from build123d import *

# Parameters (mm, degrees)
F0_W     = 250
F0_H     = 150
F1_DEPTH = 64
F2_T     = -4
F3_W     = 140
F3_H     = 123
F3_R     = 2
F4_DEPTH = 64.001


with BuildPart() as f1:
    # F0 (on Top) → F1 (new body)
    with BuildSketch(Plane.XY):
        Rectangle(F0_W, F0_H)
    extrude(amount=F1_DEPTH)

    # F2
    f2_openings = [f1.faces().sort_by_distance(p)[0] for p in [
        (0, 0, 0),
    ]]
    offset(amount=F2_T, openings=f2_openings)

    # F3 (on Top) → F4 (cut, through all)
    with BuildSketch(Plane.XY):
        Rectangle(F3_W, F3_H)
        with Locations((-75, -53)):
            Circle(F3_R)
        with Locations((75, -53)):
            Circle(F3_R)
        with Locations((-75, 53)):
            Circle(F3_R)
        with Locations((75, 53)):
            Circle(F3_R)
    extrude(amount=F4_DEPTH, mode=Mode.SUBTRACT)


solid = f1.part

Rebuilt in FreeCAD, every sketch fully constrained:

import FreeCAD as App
import Part
import Sketcher

V = App.Vector


def faces_at(feature, points):
    """Names of the faces that lie closest to the given points."""
    faces = feature.Shape.Faces
    near = lambda p: min(range(len(faces)), key=lambda i: faces[i].distToShape(Part.Vertex(*p))[0])
    return sorted({f"Face{near(p) + 1}" for p in points})


def add_polygon(sketch, points):
    """Adds a closed chain of lines whose ends are joined by coincident constraints."""
    first, n = sketch.GeometryCount, len(points)
    for a, b in zip(points, points[1:] + points[:1]):
        sketch.addGeometry(Part.LineSegment(App.Vector(*a, 0), App.Vector(*b, 0)), False)
    for i in range(n):
        sketch.addConstraint(Sketcher.Constraint("Coincident", first + i, 2, first + (i + 1) % n, 1))

doc = App.newDocument("Part")
body = doc.addObject("PartDesign::Body", "Body")

sketch1 = body.newObject("Sketcher::SketchObject", "Sketch")
sketch1.AttachmentSupport = (doc.getObject("XY_Plane"), [""])
sketch1.MapMode = "FlatFace"
add_polygon(sketch1, [(-125, 75), (-125, -75), (125, -75), (125, 75)])
sketch1.addConstraint([
    Sketcher.Constraint("Vertical", 0),
    Sketcher.Constraint("Horizontal", 1),
    Sketcher.Constraint("Vertical", 2),
    Sketcher.Constraint("Horizontal", 3),
    Sketcher.Constraint("Symmetric", 0, 2, 2, 2, -1, 1),
    Sketcher.Constraint("DistanceX", 1, 1, 1, 2, 250.0),
    Sketcher.Constraint("DistanceY", 0, 2, 0, 1, 150.0),
])
pad1 = body.newObject("PartDesign::Pad", "Pad")
pad1.Profile = sketch1
pad1.Length = 64
doc.recompute()

thickness = body.newObject("PartDesign::Thickness", "Thickness")
thickness.Base = (pad1, faces_at(pad1, [(0, 0, 0)]))
thickness.Value = 4
thickness.Reversed = True
thickness.Join = "Arc"

sketch2 = body.newObject("Sketcher::SketchObject", "Sketch001")
sketch2.AttachmentSupport = (doc.getObject("XY_Plane"), [""])
sketch2.MapMode = "FlatFace"
add_polygon(sketch2, [(-70, 61.5), (-70, -61.5), (70, -61.5), (70, 61.5)])
sketch2.addGeometry(Part.Circle(V(-75, -53, 0), V(0, 0, 1), 2), False)
sketch2.addGeometry(Part.Circle(V(75, -53, 0), V(0, 0, 1), 2), False)
sketch2.addGeometry(Part.Circle(V(-75, 53, 0), V(0, 0, 1), 2), False)
sketch2.addGeometry(Part.Circle(V(75, 53, 0), V(0, 0, 1), 2), False)
sketch2.addConstraint([
    Sketcher.Constraint("Vertical", 0),
    Sketcher.Constraint("Horizontal", 1),
    Sketcher.Constraint("Vertical", 2),
    Sketcher.Constraint("Horizontal", 3),
    Sketcher.Constraint("Equal", 4, 5),
    Sketcher.Constraint("Equal", 5, 6),
    Sketcher.Constraint("Equal", 6, 7),
    Sketcher.Constraint("Symmetric", 5, 3, 6, 3, -1, 1),
    Sketcher.Constraint("Symmetric", 4, 3, 7, 3, -1, 1),
    Sketcher.Constraint("Symmetric", 0, 2, 2, 2, -1, 1),
    Sketcher.Constraint("Symmetric", 4, 3, 5, 3, -2),
    Sketcher.Constraint("Diameter", 4, 4.0),
    Sketcher.Constraint("DistanceX", 1, 1, 1, 2, 140.0),
    Sketcher.Constraint("DistanceY", 0, 2, 0, 1, 123.0),
    Sketcher.Constraint("DistanceX", 4, 3, -1, 1, 75.0),
    Sketcher.Constraint("DistanceY", 4, 3, -1, 1, 53.0),
])
pocket1 = body.newObject("PartDesign::Pocket", "Pocket")
pocket1.Profile = sketch2
pocket1.Type = "ThroughAll"
pocket1.Reversed = True

doc.recompute()
